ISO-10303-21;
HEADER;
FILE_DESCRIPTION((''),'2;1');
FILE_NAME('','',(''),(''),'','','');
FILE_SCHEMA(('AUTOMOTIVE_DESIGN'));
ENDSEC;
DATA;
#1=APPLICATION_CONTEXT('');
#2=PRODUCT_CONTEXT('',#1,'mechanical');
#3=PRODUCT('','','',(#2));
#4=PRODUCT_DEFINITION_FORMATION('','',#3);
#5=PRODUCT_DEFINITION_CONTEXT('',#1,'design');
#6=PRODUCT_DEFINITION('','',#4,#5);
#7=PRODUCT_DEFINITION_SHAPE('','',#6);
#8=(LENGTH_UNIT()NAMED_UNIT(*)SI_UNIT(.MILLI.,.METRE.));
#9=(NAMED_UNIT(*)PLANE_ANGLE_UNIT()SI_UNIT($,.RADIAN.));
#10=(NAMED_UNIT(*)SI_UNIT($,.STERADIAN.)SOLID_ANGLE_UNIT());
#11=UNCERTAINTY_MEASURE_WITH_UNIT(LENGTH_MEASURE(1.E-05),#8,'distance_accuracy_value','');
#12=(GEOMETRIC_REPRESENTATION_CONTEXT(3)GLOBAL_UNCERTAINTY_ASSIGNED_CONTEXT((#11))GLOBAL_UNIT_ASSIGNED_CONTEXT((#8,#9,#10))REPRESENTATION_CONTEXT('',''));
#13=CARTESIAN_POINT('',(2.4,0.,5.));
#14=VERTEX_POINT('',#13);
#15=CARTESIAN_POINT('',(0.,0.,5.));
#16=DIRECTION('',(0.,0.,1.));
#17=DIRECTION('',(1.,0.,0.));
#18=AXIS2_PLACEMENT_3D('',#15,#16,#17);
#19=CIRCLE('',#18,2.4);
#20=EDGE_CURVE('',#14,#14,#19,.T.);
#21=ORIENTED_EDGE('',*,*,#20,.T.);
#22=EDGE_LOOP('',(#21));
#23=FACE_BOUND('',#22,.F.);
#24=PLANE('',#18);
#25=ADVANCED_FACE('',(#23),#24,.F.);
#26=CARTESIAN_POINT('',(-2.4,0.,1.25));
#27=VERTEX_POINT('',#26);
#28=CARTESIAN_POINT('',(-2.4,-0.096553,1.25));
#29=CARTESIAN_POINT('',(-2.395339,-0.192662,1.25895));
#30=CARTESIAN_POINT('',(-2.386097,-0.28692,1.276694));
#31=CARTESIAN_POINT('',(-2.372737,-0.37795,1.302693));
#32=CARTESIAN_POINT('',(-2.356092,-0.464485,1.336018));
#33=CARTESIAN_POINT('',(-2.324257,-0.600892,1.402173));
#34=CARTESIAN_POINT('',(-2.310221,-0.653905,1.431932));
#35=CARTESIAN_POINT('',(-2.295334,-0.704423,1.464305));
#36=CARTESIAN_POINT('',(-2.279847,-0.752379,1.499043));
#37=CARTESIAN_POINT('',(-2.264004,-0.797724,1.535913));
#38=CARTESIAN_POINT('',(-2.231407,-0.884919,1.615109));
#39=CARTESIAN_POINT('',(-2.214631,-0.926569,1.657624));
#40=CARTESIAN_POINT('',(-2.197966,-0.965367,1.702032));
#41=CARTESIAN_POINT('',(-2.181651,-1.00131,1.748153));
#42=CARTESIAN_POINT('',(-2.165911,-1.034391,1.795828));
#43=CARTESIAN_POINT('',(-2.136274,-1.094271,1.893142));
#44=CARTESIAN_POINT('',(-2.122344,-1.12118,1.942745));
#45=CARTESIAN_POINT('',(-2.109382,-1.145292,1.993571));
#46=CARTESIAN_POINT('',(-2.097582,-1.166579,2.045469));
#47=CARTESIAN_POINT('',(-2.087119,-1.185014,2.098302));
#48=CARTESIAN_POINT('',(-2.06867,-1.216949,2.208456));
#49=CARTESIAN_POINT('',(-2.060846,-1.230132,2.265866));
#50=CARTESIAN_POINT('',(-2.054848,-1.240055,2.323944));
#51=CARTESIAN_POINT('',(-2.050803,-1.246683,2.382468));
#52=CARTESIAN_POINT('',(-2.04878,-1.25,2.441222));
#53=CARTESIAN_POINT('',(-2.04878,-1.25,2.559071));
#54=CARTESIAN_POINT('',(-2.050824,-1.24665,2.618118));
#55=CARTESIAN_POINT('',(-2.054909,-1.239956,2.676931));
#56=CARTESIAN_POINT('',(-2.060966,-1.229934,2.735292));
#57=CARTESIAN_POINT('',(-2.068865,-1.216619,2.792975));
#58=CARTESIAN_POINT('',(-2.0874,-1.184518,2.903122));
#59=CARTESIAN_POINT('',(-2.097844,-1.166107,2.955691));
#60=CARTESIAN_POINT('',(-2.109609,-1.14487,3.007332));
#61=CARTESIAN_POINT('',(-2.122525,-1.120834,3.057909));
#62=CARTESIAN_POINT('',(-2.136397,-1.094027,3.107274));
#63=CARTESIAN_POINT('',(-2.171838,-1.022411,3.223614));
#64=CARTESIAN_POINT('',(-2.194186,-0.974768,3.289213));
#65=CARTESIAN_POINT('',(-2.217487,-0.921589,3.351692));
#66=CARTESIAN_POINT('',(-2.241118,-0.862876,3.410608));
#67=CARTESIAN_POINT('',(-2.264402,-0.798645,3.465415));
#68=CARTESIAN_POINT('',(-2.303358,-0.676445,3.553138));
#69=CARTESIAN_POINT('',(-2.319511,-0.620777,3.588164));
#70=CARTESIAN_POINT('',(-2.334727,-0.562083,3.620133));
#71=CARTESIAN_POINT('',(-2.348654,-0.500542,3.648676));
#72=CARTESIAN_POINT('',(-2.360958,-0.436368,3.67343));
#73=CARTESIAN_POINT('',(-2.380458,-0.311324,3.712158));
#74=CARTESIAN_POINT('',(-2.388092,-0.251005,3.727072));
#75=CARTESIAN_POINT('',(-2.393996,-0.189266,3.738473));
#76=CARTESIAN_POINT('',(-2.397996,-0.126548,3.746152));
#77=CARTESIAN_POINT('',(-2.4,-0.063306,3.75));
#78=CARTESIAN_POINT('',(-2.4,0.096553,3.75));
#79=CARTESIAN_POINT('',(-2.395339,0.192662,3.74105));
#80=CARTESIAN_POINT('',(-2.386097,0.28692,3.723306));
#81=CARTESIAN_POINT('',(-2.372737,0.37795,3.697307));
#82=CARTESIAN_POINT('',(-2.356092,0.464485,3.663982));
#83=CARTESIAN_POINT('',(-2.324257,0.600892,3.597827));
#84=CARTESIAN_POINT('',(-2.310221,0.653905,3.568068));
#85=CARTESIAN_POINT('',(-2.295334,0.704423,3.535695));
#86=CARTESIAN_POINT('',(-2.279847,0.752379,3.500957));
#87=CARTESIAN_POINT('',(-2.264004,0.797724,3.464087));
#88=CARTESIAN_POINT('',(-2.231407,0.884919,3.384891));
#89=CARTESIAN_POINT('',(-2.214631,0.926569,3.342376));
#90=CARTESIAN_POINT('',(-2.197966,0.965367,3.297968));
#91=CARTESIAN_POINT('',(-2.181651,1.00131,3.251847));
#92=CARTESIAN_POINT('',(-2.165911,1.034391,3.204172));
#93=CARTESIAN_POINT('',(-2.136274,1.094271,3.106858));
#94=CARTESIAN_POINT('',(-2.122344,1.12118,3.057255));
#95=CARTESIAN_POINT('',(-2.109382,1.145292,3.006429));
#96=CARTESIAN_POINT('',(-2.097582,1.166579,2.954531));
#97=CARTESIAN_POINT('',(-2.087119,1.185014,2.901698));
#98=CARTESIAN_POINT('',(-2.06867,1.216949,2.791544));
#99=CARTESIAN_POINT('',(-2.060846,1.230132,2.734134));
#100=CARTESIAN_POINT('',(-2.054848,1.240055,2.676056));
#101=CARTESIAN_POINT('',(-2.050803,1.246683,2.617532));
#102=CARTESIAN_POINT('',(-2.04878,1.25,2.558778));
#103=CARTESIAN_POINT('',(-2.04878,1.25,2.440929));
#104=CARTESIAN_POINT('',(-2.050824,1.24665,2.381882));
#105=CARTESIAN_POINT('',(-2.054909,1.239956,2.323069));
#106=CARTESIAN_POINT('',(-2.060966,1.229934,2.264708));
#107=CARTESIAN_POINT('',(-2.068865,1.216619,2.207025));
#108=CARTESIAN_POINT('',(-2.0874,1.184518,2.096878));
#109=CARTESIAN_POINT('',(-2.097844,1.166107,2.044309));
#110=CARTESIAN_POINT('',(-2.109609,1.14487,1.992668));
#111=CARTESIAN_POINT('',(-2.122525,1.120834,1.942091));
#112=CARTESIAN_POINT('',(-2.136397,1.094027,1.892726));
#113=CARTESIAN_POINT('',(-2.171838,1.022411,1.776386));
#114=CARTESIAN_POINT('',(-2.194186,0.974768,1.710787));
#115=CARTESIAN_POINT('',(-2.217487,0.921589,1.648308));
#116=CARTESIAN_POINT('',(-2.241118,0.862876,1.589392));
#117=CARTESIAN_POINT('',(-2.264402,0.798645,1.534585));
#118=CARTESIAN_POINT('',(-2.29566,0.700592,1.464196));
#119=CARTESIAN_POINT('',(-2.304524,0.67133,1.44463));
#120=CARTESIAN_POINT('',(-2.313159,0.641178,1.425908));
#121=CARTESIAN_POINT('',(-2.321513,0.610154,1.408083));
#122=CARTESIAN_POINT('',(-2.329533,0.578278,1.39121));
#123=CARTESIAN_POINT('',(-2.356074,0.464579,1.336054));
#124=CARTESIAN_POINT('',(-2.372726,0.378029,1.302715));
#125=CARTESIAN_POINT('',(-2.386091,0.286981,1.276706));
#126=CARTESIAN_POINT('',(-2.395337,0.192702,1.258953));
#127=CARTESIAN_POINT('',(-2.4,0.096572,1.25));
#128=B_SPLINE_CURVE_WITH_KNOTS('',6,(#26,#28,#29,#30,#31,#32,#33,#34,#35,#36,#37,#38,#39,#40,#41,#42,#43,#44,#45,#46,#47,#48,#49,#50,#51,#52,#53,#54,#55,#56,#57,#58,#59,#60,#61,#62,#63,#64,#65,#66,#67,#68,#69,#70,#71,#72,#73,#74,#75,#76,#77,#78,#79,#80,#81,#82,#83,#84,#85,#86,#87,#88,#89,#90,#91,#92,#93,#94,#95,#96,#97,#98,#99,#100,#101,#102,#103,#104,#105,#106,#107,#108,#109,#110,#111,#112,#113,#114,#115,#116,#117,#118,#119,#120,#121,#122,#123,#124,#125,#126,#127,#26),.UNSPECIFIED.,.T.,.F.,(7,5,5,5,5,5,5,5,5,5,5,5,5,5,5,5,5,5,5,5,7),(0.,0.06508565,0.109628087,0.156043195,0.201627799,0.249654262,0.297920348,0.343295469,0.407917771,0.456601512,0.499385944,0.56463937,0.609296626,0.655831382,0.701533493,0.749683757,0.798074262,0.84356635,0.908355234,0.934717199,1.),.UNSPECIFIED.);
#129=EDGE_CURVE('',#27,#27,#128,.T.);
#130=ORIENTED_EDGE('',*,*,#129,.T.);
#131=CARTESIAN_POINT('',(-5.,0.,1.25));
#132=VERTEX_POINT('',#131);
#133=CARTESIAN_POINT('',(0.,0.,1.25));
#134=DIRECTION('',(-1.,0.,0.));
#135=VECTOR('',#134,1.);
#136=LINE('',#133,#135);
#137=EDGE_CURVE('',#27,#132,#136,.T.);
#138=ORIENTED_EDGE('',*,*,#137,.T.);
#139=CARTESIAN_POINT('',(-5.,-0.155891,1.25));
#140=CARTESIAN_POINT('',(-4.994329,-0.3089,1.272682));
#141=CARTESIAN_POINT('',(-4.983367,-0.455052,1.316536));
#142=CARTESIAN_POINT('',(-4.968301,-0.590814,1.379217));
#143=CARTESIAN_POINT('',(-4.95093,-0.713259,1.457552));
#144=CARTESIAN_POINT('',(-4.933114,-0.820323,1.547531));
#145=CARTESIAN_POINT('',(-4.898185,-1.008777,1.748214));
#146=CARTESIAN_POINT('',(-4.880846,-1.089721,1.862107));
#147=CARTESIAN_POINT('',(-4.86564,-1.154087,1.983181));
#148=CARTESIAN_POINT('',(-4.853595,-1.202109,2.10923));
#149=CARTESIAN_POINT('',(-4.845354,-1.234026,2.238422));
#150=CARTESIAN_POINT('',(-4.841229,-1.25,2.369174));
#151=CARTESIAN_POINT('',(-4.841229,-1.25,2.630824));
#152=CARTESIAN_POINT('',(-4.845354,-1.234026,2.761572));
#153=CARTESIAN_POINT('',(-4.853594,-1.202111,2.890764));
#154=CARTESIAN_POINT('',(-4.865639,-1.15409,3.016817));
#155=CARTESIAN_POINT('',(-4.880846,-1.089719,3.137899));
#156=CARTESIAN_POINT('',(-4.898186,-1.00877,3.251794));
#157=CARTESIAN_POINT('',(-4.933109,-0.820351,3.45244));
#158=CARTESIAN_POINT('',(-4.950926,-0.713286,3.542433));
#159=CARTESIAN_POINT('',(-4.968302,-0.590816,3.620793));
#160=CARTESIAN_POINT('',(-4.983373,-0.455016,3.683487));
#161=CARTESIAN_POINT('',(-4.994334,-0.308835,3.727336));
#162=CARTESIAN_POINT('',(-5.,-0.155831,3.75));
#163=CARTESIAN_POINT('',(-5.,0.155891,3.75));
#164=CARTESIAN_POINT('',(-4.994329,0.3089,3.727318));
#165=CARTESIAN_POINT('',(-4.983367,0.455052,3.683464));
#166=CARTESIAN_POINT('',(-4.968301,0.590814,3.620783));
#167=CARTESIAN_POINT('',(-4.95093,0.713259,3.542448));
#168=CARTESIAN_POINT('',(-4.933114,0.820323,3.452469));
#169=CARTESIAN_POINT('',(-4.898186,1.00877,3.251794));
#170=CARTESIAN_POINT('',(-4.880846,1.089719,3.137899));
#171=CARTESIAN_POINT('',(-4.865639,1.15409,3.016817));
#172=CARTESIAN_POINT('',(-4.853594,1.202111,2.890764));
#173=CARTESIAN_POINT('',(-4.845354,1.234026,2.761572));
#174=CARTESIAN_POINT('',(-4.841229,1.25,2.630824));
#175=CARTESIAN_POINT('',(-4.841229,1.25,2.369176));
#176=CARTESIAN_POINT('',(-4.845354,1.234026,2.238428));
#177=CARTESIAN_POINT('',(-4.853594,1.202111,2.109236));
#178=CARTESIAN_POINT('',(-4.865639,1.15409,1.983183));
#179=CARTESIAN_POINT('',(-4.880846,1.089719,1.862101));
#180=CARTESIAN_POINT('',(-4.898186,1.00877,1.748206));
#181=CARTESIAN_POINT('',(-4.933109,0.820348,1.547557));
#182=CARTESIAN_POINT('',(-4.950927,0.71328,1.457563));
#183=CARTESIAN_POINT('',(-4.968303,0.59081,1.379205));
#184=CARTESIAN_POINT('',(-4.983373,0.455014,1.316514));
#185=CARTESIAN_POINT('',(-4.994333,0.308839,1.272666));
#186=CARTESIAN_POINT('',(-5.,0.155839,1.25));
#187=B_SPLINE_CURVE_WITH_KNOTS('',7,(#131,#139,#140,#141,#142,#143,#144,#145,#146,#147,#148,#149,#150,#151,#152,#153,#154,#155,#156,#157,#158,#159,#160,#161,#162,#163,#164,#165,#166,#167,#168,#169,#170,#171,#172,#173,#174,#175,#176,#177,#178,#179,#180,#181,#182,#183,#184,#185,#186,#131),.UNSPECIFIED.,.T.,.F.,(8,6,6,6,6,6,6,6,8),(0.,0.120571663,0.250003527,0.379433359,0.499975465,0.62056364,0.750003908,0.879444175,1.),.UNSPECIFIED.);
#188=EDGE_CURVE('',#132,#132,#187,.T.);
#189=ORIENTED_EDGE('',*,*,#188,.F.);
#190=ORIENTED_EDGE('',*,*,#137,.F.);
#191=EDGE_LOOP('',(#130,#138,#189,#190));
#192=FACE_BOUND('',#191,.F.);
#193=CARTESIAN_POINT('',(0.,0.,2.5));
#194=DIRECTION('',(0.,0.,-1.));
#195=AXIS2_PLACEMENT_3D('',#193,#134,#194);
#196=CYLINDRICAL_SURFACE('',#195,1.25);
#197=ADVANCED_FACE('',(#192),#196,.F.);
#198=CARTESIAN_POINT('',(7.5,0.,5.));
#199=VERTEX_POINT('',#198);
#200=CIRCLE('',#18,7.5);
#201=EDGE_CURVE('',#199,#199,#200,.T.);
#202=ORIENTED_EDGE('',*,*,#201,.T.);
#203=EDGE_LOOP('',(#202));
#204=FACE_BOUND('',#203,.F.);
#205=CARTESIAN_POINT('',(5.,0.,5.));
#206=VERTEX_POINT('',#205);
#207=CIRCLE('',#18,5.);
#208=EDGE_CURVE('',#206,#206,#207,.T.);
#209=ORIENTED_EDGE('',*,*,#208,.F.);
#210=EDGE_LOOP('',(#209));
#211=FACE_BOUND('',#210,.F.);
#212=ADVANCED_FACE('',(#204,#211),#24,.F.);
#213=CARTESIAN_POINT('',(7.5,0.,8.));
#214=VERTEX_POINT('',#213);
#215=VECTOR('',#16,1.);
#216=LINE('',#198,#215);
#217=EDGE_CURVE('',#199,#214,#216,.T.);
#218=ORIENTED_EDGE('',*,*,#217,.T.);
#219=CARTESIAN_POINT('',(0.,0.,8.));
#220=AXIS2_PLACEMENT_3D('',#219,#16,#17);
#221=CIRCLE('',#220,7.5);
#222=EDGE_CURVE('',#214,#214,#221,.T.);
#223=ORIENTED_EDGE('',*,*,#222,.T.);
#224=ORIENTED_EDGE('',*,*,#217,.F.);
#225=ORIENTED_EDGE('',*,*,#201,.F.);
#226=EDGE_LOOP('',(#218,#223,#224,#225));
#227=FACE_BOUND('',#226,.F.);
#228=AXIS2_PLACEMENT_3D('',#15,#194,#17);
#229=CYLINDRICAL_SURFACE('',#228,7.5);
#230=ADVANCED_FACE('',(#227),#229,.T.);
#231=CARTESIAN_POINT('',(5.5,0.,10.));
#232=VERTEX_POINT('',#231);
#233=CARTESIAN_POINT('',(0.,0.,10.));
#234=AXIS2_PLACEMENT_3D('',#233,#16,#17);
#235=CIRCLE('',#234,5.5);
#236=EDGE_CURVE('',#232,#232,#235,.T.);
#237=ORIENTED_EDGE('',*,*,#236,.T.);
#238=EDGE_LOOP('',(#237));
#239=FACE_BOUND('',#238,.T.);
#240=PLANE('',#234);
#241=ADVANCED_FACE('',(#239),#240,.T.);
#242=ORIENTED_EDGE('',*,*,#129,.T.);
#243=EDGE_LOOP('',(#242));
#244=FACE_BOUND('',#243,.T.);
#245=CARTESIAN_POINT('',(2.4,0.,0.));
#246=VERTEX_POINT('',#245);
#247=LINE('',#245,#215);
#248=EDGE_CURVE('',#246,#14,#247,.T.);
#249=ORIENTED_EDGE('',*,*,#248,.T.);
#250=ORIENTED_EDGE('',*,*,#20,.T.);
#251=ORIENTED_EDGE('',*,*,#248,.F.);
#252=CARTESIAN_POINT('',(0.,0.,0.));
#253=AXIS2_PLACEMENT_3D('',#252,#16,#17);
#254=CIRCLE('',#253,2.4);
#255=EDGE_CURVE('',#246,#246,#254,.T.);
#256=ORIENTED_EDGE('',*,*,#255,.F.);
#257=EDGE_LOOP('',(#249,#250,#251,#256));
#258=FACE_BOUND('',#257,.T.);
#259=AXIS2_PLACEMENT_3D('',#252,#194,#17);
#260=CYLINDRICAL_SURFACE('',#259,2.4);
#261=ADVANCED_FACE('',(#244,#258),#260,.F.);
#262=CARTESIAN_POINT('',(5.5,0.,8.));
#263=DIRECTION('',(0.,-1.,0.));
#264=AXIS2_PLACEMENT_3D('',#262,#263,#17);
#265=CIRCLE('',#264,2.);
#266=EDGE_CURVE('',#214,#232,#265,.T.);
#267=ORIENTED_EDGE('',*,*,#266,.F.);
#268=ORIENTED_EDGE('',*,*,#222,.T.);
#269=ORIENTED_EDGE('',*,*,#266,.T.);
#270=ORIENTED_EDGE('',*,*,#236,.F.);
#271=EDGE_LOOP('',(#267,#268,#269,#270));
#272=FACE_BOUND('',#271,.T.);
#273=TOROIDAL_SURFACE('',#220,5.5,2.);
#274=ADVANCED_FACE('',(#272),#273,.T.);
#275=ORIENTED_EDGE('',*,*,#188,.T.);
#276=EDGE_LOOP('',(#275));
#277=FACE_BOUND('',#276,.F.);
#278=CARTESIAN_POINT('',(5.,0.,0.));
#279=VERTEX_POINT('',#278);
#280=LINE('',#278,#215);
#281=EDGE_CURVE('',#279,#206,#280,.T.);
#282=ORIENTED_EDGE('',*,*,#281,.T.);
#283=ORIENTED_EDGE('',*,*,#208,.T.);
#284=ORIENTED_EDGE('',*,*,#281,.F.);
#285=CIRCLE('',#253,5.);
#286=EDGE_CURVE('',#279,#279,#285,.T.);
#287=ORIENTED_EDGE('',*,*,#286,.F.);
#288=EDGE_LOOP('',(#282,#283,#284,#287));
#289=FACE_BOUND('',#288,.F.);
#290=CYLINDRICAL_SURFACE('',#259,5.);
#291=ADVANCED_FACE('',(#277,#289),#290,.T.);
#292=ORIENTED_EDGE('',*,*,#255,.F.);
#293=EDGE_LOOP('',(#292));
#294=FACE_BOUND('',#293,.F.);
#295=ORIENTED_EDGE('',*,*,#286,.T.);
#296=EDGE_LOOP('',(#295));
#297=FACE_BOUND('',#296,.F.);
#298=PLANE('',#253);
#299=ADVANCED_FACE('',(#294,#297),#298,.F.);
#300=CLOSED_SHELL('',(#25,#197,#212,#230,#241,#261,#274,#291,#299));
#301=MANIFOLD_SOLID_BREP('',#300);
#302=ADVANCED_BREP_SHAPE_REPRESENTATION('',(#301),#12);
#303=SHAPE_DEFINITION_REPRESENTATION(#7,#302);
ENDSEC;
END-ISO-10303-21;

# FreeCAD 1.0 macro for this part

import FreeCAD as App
import Part
import Sketcher
Q = App.Units.Quantity


def edges_at(feature, points):
    """Names of the edges that pass closest to the given points."""
    edges = feature.Shape.Edges
    near = lambda p: min(range(len(edges)), key=lambda i: edges[i].distToShape(Part.Vertex(*p))[0])
    return sorted({f"Edge{near(p) + 1}" for p in points})

doc = App.newDocument("Part")
body = doc.addObject("PartDesign::Body", "Body")

sketch1 = body.newObject("Sketcher::SketchObject", "Sketch")
sketch1.AttachmentSupport = (doc.getObject("XY_Plane"), [""])
sketch1.MapMode = "FlatFace"
sketch1.addGeometry([
    Part.Circle(App.Vector(0, 0, 0), App.Vector(0, 0, 1), 5),
    Part.Circle(App.Vector(0, 0, 0), App.Vector(0, 0, 1), 2.4),
], False)
sketch1.addConstraint([
    Sketcher.Constraint("Coincident", 0, 3, -1, 1),
    Sketcher.Constraint("Coincident", 1, 3, -1, 1),
    Sketcher.Constraint("Diameter", 0, Q("10 mm")),
    Sketcher.Constraint("Diameter", 1, Q("4.8 mm")),
])
pad1 = body.newObject("PartDesign::Pad", "Pad")
pad1.Profile = sketch1
pad1.Length = 5

sketch2 = body.newObject("Sketcher::SketchObject", "Sketch001")
sketch2.AttachmentSupport = (doc.getObject("XY_Plane"), [""])
sketch2.MapMode = "FlatFace"
sketch2.AttachmentOffset = App.Placement(App.Vector(0, 0, 5), App.Rotation())
sketch2.addGeometry(Part.Circle(App.Vector(0, 0, 0), App.Vector(0, 0, 1), 7.5), False)
sketch2.addConstraint([
    Sketcher.Constraint("Coincident", 0, 3, -1, 1),
    Sketcher.Constraint("Diameter", 0, Q("15 mm")),
])
pad2 = body.newObject("PartDesign::Pad", "Pad001")
pad2.Profile = sketch2
pad2.Length = 5
doc.recompute()

fillet = body.newObject("PartDesign::Fillet", "Fillet")
fillet.Base = (pad2, edges_at(pad2, [(-7.5, 0, 10)]))
fillet.Radius = 2

sketch3 = body.newObject("Sketcher::SketchObject", "Sketch002")
sketch3.AttachmentSupport = (doc.getObject("YZ_Plane"), [""])
sketch3.MapMode = "FlatFace"
sketch3.addGeometry(Part.Circle(App.Vector(0, 2.5, 0), App.Vector(0, 0, 1), 1.25), False)
sketch3.addConstraint([
    Sketcher.Constraint("PointOnObject", 0, 3, -2),
    Sketcher.Constraint("Diameter", 0, Q("2.5 mm")),
    Sketcher.Constraint("DistanceY", -1, 1, 0, 3, Q("2.5 mm")),
])
doc.recompute()
hole = body.newObject("PartDesign::Hole", "Hole")
hole.Profile = sketch3
hole.ThreadType = "None"
hole.Diameter = 2.5
hole.DepthType = "ThroughAll"

doc.recompute()
